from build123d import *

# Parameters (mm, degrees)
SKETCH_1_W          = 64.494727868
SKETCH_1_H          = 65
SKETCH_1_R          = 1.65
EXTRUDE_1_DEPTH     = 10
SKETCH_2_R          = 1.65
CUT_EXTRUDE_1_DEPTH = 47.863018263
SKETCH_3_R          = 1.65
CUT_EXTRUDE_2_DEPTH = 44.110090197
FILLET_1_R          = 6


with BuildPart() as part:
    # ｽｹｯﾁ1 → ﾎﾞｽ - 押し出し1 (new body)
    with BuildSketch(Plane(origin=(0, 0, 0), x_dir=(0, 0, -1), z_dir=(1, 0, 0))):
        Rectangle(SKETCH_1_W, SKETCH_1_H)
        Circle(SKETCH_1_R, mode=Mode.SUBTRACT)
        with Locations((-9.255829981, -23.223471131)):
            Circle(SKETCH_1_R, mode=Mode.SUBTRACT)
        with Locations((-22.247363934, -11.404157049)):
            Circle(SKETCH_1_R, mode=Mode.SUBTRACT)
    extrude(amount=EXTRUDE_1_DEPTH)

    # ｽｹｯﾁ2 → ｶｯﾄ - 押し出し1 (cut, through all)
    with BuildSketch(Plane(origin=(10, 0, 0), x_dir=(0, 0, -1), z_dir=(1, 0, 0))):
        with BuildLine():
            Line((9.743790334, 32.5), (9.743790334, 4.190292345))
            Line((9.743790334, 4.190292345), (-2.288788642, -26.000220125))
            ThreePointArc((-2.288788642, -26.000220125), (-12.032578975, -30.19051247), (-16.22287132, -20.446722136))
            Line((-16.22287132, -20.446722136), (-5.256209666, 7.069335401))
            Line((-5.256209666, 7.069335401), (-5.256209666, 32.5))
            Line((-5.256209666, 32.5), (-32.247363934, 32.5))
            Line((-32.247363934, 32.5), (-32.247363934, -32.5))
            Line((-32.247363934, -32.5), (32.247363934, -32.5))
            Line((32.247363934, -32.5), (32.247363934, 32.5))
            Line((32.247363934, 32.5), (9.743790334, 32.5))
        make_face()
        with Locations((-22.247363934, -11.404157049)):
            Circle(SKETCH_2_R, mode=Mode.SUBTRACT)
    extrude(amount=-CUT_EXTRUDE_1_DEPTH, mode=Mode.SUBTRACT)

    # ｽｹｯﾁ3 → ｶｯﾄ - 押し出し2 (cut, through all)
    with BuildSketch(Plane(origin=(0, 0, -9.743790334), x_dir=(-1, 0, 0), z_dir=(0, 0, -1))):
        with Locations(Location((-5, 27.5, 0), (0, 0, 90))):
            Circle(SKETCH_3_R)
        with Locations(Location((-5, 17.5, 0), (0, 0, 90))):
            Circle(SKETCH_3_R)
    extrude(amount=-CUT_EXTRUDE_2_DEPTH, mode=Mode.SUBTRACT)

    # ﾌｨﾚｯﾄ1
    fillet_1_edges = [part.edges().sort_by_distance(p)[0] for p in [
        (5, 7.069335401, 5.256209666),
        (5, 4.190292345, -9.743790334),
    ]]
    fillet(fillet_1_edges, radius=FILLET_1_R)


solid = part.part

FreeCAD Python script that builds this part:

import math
import FreeCAD as App
import Part
import Sketcher

V = App.Vector
Q = App.Units.Quantity


def edges_at(feature, points):
    """Names of the edges that pass closest to the given points."""
    edges = feature.Shape.Edges
    near = lambda p: min(range(len(edges)), key=lambda i: edges[i].distToShape(Part.Vertex(*p))[0])
    return sorted({f"Edge{near(p) + 1}" for p in points})

doc = App.newDocument("Part")
params = doc.addObject("Spreadsheet::Sheet", "Params")
for row, (alias, value) in enumerate([
    ("sketch1_diameter", "3.3 mm"),
    ("sketch1_width", "65 mm"),
    ("pad1_length", "10 mm"),
    ("sketch2_diameter", "3.3 mm"),
    ("sketch2_radius", "7.5 mm"),
    ("sketch2_width", "65 mm"),
    ("sketch2_length", "32.5 mm"),
    ("sketch3_diameter", "3.3 mm"),
    ("fillet_radius", "6 mm"),
], start=1):
    params.set(f"A{row}", alias)
    params.set(f"B{row}", "=" + value)
    params.setAlias(f"B{row}", alias)

body = doc.addObject("PartDesign::Body", "Body")

sketch1 = body.newObject("Sketcher::SketchObject", "Sketch")
sketch1.AttachmentSupport = (doc.getObject("YZ_Plane"), [""])
sketch1.MapMode = "FlatFace"
sketch1.addGeometry([
    Part.LineSegment(V(32.5, 32.247364, 0), V(-32.5, 32.247364, 0)),
    Part.LineSegment(V(-32.5, 32.247364, 0), V(-32.5, -32.247364, 0)),
    Part.LineSegment(V(-32.5, -32.247364, 0), V(32.5, -32.247364, 0)),
    Part.LineSegment(V(32.5, -32.247364, 0), V(32.5, 32.247364, 0)),
    Part.Circle(V(-23.223471, 9.25583, 0), V(0, 0, 1), 1.65),
    Part.Circle(V(-11.404157, 22.247364, 0), V(0, 0, 1), 1.65),
    Part.Circle(V(0, 0, 0), V(0, 0, 1), 1.65),
], False)
sketch1.addConstraint([
    Sketcher.Constraint("Coincident", 0, 2, 1, 1),
    Sketcher.Constraint("Coincident", 1, 2, 2, 1),
    Sketcher.Constraint("Coincident", 2, 2, 3, 1),
    Sketcher.Constraint("Coincident", 3, 2, 0, 1),
    Sketcher.Constraint("Horizontal", 0),
    Sketcher.Constraint("Vertical", 1),
    Sketcher.Constraint("Horizontal", 2),
    Sketcher.Constraint("Vertical", 3),
    Sketcher.Constraint("Coincident", 6, 3, -1, 1),
    Sketcher.Constraint("Equal", 4, 5),
    Sketcher.Constraint("Equal", 5, 6),
    Sketcher.Constraint("Symmetric", 0, 2, 2, 2, -1, 1),
    Sketcher.Constraint("Diameter", 4, 3.3),
    Sketcher.Constraint("DistanceX", 0, 2, 0, 1, 65.0),
    Sketcher.Constraint("DistanceY", 5, 3, 0, 2, 10.0),
    Sketcher.Constraint("DistanceY", 1, 2, 1, 1, 64.494728),
    Sketcher.Constraint("DistanceX", 4, 3, -1, 1, 23.223471),
    Sketcher.Constraint("DistanceY", -1, 1, 4, 3, 9.25583),
    Sketcher.Constraint("DistanceX", 5, 3, -1, 1, 11.404157),
])
sketch1.setExpression("Constraints[12]", "Params.sketch1_diameter")
sketch1.setExpression("Constraints[13]", "Params.sketch1_width")
pad1 = body.newObject("PartDesign::Pad", "Pad")
pad1.Profile = sketch1
pad1.setExpression("Length", "Params.pad1_length")

sketch2 = body.newObject("Sketcher::SketchObject", "Sketch001")
sketch2.AttachmentSupport = (doc.getObject("YZ_Plane"), [""])
sketch2.MapMode = "FlatFace"
sketch2.AttachmentOffset = App.Placement(V(0, 0, 10), App.Rotation())
sketch2.addGeometry([
    Part.LineSegment(V(32.5, -9.74379, 0), V(4.190292, -9.74379, 0)),
    Part.LineSegment(V(4.190292, -9.74379, 0), V(-26.00022, 2.288789, 0)),
    Part.ArcOfCircle(Part.Circle(V(-23.223471, 9.25583, 0), V(0, 0, 1), 7.5), math.radians(68.27), math.radians(248.27)),
    Part.LineSegment(V(-20.446722, 16.222871, 0), V(7.069335, 5.25621, 0)),
    Part.LineSegment(V(7.069335, 5.25621, 0), V(32.5, 5.25621, 0)),
    Part.LineSegment(V(32.5, 5.25621, 0), V(32.5, 32.247364, 0)),
    Part.LineSegment(V(32.5, 32.247364, 0), V(-32.5, 32.247364, 0)),
    Part.LineSegment(V(-32.5, 32.247364, 0), V(-32.5, -32.247364, 0)),
    Part.LineSegment(V(-32.5, -32.247364, 0), V(32.5, -32.247364, 0)),
    Part.LineSegment(V(32.5, -32.247364, 0), V(32.5, -9.74379, 0)),
    Part.Circle(V(-11.404157, 22.247364, 0), V(0, 0, 1), 1.65),
], False)
sketch2.addConstraint([
    Sketcher.Constraint("Coincident", 0, 2, 1, 1),
    Sketcher.Constraint("Tangent", 1, 2, 2, 2),
    Sketcher.Constraint("Tangent", 2, 1, 3, 1),
    Sketcher.Constraint("Coincident", 3, 2, 4, 1),
    Sketcher.Constraint("Coincident", 4, 2, 5, 1),
    Sketcher.Constraint("Coincident", 5, 2, 6, 1),
    Sketcher.Constraint("Coincident", 6, 2, 7, 1),
    Sketcher.Constraint("Coincident", 7, 2, 8, 1),
    Sketcher.Constraint("Coincident", 8, 2, 9, 1),
    Sketcher.Constraint("Coincident", 9, 2, 0, 1),
    Sketcher.Constraint("Horizontal", 0),
    Sketcher.Constraint("Horizontal", 4),
    Sketcher.Constraint("Vertical", 5),
    Sketcher.Constraint("Horizontal", 6),
    Sketcher.Constraint("Vertical", 7),
    Sketcher.Constraint("Horizontal", 8),
    Sketcher.Constraint("Vertical", 9),
    Sketcher.Constraint("Symmetric", 5, 2, 7, 2, -1, 1),
    Sketcher.Constraint("Parallel", 1, 3),
    Sketcher.Constraint("Vertical", 5, 2, 8, 2),
    Sketcher.Constraint("Diameter", 10, 3.3),
    Sketcher.Constraint("Radius", 2, 7.5),
    Sketcher.Constraint("DistanceX", 6, 2, 6, 1, 65.0),
    Sketcher.Constraint("DistanceY", 0, 2, 3, 2, 15.0),
    Sketcher.Constraint("DistanceY", 10, 3, 5, 2, 10.0),
    Sketcher.Constraint("Distance", 1, 32.5),
    Sketcher.Constraint("Angle", 1, Q("158.27 deg")),
    Sketcher.Constraint("DistanceX", 0, 2, 0, 1, 28.309708),
    Sketcher.Constraint("DistanceY", 5, 1, 5, 2, 26.991154),
    Sketcher.Constraint("DistanceY", 7, 2, 7, 1, 64.494728),
    Sketcher.Constraint("DistanceX", 10, 3, 0, 2, 15.594449),
])
sketch2.setExpression("Constraints[20]", "Params.sketch2_diameter")
sketch2.setExpression("Constraints[21]", "Params.sketch2_radius")
sketch2.setExpression("Constraints[22]", "Params.sketch2_width")
sketch2.setExpression("Constraints[25]", "Params.sketch2_length")
pocket1 = body.newObject("PartDesign::Pocket", "Pocket")
pocket1.Profile = sketch2
pocket1.Type = "ThroughAll"

sketch3 = body.newObject("Sketcher::SketchObject", "Sketch002")
sketch3.AttachmentSupport = (doc.getObject("XY_Plane"), [""])
sketch3.MapMode = "FlatFace"
sketch3.AttachmentOffset = App.Placement(V(0, 0, -9.74379), App.Rotation())
sketch3.addGeometry([
    Part.Circle(V(5, 27.5, 0), V(0, 0, 1), 1.65),
    Part.Circle(V(5, 17.5, 0), V(0, 0, 1), 1.65),
], False)
sketch3.addConstraint([
    Sketcher.Constraint("Equal", 0, 1),
    Sketcher.Constraint("Vertical", 0, 3, 1, 3),
    Sketcher.Constraint("Diameter", 0, 3.3),
    Sketcher.Constraint("DistanceX", -1, 1, 0, 3, 5.0),
    Sketcher.Constraint("DistanceY", 1, 3, 0, 3, 10.0),
    Sketcher.Constraint("DistanceY", -1, 1, 0, 3, 27.5),
])
sketch3.setExpression("Constraints[2]", "Params.sketch3_diameter")
pocket2 = body.newObject("PartDesign::Pocket", "Pocket001")
pocket2.Profile = sketch3
pocket2.Type = "ThroughAll"
pocket2.Reversed = True
doc.recompute()

fillet = body.newObject("PartDesign::Fillet", "Fillet")
fillet.Base = (pocket2, edges_at(pocket2, [(5, 7.069, 5.256), (5, 4.19, -9.744)]))
fillet.setExpression("Radius", "Params.fillet_radius")

doc.recompute()
